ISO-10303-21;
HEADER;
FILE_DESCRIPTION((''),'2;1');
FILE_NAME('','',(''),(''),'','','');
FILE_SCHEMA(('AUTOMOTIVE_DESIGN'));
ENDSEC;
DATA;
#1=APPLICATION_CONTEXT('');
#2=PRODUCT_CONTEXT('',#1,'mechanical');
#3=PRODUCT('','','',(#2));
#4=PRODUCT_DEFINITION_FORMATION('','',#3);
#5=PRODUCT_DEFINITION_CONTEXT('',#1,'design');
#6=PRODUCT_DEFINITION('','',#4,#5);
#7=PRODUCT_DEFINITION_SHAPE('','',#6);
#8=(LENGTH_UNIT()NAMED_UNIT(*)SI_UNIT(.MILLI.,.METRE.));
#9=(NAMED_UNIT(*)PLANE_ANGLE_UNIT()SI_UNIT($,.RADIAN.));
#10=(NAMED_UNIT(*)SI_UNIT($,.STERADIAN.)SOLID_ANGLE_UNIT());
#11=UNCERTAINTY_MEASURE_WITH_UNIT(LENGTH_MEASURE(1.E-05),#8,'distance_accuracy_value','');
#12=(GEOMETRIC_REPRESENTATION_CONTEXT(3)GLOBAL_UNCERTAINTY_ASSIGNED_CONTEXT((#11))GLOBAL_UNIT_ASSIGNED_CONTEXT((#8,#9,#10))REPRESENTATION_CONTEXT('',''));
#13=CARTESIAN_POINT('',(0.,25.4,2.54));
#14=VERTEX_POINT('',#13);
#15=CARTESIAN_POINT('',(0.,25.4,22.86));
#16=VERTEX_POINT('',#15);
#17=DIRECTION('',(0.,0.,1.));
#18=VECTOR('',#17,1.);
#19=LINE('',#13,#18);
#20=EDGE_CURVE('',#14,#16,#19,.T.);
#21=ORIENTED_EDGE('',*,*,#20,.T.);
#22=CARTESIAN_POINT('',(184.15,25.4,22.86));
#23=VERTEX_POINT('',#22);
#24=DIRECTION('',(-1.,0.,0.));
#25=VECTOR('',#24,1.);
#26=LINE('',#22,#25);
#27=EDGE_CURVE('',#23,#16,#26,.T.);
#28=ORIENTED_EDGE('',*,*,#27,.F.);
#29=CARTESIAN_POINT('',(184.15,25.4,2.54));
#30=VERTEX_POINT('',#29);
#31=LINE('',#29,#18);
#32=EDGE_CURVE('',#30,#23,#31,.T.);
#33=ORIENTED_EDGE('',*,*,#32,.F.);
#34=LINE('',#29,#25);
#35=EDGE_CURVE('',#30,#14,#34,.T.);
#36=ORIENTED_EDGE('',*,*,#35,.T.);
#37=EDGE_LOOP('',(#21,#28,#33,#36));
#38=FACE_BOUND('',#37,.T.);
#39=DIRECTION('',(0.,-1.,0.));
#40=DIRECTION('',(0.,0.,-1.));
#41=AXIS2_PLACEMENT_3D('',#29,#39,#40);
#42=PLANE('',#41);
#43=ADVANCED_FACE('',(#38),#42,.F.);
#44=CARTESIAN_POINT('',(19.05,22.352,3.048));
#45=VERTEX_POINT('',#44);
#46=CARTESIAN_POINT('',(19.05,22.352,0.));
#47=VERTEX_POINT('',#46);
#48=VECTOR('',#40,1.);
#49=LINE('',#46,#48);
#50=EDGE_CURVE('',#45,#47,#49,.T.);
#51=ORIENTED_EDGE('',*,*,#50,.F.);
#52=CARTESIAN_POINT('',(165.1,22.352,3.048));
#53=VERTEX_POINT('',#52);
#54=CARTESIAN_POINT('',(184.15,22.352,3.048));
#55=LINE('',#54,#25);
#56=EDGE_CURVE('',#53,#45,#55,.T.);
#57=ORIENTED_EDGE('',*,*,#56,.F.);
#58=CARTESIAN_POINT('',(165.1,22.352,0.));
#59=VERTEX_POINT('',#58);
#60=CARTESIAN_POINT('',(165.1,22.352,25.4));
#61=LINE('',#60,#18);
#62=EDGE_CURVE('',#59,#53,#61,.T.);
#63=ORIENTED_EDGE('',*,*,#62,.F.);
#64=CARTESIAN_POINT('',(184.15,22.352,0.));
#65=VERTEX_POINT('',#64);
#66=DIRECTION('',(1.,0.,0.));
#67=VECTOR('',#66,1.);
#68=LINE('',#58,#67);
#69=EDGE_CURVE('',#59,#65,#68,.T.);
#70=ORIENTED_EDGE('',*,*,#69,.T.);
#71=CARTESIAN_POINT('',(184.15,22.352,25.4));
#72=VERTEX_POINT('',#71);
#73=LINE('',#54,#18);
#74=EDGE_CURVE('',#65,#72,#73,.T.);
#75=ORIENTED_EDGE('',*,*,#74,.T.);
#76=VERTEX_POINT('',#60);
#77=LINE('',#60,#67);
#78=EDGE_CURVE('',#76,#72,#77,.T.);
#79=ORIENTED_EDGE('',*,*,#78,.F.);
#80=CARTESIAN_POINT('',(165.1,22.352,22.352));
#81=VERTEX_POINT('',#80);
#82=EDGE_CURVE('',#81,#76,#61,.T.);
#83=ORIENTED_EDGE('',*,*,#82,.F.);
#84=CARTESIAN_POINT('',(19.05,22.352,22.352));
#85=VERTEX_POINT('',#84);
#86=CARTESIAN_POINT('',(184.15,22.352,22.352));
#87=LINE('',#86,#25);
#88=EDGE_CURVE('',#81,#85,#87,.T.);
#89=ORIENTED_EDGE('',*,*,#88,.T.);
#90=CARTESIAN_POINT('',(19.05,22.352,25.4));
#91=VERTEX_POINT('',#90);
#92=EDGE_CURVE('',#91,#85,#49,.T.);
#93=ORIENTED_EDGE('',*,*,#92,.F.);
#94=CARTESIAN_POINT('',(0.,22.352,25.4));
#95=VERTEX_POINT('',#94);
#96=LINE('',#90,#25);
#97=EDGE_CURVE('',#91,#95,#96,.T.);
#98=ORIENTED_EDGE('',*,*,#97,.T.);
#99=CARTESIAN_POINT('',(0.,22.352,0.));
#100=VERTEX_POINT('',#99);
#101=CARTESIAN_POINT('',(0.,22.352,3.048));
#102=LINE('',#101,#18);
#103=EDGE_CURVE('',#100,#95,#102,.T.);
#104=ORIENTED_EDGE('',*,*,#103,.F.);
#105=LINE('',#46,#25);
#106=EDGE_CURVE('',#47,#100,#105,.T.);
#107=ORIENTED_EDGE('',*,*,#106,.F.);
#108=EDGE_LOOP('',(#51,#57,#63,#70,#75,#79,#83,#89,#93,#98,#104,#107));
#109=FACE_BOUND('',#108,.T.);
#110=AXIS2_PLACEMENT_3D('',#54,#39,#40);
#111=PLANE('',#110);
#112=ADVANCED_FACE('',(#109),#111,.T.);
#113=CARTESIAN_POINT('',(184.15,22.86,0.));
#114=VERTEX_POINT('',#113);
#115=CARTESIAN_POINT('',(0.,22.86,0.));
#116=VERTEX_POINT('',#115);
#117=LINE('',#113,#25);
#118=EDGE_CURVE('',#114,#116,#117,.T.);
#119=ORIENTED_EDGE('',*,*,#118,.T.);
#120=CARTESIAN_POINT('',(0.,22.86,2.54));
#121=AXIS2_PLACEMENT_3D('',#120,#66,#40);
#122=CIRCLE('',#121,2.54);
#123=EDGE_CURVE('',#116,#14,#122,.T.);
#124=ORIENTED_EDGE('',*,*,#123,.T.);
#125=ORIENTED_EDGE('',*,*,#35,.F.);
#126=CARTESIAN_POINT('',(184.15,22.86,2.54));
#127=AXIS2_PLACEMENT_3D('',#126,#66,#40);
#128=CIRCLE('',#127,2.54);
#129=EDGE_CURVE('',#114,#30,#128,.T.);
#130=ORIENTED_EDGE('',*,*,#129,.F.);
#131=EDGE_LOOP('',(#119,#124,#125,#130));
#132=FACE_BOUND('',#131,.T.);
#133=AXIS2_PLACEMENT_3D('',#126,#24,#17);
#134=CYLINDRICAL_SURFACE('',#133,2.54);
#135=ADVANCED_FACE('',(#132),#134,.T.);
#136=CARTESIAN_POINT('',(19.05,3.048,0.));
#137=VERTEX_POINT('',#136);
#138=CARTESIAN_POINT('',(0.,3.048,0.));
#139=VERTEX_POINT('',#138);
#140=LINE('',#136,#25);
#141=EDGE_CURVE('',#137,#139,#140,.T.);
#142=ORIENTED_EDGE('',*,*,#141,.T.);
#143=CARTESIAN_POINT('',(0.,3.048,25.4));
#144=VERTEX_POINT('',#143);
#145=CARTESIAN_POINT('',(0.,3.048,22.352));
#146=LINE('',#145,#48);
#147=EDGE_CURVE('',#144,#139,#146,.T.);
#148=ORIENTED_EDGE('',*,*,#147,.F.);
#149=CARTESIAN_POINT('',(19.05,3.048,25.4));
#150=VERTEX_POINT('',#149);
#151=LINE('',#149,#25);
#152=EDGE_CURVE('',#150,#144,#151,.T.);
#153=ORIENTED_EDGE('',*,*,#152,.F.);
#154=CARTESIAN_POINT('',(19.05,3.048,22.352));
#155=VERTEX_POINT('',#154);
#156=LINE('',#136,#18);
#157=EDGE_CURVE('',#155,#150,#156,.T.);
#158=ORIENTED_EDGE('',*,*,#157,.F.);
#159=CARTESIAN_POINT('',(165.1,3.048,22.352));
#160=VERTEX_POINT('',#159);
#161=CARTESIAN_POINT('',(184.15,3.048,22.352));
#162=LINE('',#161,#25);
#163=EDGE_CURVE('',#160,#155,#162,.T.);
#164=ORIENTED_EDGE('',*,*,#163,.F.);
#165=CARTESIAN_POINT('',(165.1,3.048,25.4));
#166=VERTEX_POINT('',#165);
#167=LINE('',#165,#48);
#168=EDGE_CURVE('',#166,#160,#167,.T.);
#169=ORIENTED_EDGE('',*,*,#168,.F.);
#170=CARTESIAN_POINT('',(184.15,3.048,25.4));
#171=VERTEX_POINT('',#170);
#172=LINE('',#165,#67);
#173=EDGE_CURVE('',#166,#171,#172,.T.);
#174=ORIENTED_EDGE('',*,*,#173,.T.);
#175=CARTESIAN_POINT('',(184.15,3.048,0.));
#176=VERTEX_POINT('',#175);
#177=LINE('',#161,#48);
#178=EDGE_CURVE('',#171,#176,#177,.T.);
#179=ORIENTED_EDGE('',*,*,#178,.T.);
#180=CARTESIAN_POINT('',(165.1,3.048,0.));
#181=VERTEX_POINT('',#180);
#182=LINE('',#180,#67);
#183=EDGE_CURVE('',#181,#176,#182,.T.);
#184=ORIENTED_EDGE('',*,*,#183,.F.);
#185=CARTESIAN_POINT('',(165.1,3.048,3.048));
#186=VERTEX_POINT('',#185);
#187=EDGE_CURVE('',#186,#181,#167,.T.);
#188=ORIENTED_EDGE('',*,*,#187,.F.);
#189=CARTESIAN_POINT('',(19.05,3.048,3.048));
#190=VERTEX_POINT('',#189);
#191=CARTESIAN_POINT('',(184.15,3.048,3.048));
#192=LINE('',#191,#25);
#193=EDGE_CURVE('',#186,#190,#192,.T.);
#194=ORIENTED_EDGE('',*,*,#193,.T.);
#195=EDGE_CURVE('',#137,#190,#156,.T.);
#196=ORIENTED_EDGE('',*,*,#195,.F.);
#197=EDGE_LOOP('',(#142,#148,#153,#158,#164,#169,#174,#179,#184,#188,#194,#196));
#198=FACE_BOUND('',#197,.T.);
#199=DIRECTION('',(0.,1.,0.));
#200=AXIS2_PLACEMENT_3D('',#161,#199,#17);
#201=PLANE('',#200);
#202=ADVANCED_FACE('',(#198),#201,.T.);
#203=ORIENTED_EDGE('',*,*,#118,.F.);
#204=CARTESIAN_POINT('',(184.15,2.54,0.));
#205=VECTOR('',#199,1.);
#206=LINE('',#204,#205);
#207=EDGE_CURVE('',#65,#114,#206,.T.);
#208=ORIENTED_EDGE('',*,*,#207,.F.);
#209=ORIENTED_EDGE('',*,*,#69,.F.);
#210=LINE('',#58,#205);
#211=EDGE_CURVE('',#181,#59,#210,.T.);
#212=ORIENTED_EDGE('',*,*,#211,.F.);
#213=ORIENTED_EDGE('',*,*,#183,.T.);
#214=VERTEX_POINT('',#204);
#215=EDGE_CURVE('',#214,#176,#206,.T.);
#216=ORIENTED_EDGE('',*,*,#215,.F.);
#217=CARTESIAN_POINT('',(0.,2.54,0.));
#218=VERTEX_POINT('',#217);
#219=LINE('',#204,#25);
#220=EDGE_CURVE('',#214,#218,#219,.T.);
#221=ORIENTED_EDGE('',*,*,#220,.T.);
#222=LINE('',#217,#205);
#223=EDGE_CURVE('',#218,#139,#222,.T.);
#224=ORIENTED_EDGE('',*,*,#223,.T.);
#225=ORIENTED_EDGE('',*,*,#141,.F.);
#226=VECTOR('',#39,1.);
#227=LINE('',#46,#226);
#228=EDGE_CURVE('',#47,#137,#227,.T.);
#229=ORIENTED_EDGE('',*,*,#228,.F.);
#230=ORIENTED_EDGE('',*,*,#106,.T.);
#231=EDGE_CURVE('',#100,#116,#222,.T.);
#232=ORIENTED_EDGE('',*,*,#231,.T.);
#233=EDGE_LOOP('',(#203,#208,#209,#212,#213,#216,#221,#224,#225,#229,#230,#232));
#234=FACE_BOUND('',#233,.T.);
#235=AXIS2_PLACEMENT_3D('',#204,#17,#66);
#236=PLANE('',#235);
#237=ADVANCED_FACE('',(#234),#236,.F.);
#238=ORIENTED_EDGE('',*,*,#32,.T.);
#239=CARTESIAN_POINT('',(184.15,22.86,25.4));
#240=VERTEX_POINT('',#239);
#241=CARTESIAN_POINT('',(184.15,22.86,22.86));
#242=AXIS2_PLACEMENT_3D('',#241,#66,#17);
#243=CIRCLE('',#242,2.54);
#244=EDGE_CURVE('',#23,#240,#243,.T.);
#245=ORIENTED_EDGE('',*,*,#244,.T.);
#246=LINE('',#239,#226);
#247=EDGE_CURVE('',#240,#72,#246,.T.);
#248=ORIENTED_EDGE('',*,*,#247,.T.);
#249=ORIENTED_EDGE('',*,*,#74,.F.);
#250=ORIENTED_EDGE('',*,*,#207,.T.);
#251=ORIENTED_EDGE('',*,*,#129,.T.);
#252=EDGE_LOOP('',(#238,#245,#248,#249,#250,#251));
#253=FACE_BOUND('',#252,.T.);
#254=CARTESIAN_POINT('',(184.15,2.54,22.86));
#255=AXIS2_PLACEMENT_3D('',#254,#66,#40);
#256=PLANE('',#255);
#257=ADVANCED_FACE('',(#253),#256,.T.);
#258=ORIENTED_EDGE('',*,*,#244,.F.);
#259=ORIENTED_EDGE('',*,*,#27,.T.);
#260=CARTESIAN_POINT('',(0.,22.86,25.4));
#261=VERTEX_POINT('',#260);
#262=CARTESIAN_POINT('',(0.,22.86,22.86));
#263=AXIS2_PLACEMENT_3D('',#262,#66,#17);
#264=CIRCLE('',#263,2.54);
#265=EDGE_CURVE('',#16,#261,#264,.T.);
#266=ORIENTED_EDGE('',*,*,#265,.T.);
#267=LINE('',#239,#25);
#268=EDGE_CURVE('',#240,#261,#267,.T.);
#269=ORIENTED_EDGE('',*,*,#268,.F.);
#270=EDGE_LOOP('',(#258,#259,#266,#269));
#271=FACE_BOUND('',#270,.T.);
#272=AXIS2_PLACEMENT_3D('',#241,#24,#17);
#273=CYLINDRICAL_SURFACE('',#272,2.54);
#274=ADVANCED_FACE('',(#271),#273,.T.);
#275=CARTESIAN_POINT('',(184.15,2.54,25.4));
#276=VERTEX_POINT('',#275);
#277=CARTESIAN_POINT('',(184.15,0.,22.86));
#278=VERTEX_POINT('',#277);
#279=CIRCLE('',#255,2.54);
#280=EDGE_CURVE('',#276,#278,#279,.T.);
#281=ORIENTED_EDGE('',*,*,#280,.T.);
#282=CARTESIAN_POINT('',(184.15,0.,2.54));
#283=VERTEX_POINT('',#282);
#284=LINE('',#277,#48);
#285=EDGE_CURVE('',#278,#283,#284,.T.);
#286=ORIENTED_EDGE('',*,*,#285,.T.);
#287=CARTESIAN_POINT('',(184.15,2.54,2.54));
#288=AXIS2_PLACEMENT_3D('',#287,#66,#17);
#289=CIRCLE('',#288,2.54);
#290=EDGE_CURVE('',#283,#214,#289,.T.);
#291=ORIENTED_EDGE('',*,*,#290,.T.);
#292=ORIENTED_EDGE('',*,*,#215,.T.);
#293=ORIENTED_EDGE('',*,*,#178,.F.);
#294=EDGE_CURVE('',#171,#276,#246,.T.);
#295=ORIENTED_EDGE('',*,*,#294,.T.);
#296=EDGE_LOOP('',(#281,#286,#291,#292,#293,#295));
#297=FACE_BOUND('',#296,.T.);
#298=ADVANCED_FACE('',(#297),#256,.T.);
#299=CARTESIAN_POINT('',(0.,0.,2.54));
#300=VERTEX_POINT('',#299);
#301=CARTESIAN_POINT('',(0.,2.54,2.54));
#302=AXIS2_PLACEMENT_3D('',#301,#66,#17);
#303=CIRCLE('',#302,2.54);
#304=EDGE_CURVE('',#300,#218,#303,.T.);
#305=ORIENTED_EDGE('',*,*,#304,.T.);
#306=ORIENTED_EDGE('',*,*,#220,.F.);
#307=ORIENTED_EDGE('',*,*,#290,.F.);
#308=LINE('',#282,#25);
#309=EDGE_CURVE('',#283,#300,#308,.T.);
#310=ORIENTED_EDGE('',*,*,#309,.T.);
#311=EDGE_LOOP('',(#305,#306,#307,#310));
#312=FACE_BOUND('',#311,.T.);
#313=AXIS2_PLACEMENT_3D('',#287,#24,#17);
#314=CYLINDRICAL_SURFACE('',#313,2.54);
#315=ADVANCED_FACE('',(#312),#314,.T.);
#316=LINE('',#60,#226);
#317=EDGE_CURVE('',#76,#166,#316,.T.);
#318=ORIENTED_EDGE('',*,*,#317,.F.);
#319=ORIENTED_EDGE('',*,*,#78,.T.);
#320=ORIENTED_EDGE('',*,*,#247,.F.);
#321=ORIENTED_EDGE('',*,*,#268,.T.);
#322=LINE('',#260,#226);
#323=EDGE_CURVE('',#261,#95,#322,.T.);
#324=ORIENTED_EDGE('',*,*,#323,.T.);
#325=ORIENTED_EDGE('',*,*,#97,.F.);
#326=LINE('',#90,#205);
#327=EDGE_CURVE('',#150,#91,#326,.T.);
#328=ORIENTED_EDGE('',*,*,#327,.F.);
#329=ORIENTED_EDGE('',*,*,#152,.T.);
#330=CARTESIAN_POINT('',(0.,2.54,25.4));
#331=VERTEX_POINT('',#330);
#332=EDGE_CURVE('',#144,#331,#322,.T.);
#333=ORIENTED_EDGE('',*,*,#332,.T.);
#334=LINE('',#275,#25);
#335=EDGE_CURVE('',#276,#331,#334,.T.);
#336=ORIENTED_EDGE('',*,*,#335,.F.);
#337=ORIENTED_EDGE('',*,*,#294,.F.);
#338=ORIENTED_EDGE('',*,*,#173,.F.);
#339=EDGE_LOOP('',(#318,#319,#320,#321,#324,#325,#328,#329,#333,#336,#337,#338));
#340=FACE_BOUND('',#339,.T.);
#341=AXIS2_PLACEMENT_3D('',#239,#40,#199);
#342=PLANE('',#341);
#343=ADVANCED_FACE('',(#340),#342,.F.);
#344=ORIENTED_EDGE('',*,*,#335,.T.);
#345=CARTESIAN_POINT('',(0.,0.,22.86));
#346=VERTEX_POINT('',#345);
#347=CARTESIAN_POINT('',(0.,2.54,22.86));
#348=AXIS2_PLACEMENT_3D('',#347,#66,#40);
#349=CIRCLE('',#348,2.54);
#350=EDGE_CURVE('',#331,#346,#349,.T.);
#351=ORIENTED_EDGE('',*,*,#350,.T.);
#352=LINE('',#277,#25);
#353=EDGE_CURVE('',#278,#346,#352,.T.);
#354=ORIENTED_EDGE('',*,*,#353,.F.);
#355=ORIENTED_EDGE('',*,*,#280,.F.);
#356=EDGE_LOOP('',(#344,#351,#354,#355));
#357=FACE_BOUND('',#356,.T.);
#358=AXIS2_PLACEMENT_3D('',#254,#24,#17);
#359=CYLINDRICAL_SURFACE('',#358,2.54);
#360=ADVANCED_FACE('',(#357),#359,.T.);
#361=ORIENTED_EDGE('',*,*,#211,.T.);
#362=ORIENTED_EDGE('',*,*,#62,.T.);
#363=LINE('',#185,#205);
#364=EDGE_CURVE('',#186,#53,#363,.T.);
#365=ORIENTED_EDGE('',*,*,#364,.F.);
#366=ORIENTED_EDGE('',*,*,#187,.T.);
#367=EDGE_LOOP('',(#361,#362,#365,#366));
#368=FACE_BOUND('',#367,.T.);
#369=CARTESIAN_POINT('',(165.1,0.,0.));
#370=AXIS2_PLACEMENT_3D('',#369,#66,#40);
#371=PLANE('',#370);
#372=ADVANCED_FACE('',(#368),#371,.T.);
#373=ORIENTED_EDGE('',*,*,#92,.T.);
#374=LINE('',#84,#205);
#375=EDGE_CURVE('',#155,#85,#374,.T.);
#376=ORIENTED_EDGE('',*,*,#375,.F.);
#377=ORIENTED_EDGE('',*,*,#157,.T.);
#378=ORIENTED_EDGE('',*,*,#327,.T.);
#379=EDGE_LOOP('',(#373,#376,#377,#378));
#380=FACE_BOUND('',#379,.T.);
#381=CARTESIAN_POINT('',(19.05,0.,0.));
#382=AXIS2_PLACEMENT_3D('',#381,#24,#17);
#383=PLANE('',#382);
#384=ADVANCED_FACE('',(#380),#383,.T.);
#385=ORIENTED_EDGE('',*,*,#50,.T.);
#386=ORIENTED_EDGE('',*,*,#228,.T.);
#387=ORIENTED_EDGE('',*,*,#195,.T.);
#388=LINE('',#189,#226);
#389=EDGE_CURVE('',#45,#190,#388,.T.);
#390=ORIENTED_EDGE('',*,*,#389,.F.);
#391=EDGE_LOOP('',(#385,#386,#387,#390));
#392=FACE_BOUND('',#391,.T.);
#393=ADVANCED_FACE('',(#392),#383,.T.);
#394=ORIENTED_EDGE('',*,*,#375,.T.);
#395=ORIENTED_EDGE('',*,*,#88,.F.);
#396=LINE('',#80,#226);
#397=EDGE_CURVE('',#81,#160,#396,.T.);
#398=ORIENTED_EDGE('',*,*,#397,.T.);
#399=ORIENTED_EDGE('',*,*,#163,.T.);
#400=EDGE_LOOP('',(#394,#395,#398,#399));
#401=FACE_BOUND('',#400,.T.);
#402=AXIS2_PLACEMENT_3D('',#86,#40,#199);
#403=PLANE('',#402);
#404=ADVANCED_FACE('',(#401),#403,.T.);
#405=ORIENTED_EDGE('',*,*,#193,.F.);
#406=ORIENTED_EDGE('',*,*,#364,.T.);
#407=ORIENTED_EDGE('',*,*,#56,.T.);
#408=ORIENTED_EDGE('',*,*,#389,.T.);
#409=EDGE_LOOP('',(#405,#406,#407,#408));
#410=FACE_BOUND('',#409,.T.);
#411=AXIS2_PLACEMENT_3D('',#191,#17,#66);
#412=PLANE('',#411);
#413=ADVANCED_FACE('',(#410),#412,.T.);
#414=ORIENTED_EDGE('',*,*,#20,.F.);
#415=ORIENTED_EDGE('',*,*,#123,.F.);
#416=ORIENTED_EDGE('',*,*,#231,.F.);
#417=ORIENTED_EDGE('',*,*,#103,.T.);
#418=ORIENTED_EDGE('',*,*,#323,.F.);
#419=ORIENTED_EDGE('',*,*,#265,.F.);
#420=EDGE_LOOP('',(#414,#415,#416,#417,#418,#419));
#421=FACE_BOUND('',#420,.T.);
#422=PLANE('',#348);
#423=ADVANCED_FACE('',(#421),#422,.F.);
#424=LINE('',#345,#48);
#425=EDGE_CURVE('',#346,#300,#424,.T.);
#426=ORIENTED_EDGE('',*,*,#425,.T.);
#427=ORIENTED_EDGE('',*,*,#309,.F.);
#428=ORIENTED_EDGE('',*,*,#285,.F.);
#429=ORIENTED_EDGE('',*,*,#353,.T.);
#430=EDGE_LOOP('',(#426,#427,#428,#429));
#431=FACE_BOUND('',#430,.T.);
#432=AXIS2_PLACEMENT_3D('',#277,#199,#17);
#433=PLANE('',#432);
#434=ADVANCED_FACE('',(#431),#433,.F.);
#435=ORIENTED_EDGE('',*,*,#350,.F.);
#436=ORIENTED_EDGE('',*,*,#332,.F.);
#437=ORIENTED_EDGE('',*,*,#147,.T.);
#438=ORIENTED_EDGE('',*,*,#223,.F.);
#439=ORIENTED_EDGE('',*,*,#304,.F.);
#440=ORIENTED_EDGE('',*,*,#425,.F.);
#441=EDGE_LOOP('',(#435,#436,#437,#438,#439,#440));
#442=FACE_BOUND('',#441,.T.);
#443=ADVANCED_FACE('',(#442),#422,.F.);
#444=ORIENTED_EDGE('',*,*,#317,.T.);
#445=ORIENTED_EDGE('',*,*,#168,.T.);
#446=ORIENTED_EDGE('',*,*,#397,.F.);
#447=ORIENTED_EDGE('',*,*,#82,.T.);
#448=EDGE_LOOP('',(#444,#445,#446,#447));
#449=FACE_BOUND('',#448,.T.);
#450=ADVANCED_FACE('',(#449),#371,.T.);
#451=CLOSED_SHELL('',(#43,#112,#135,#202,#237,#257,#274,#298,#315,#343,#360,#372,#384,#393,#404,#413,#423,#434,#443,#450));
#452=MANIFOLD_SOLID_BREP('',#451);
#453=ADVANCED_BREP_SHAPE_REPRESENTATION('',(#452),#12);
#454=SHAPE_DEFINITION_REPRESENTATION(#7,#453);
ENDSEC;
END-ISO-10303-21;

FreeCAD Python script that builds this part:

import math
import FreeCAD as App
import Part
import Sketcher

V = App.Vector
Q = App.Units.Quantity


def add_polygon(sketch, points):
    """Adds a closed chain of lines whose ends are joined by coincident constraints."""
    first, n = sketch.GeometryCount, len(points)
    for a, b in zip(points, points[1:] + points[:1]):
        sketch.addGeometry(Part.LineSegment(App.Vector(*a, 0), App.Vector(*b, 0)), False)
    for i in range(n):
        sketch.addConstraint(Sketcher.Constraint("Coincident", first + i, 2, first + (i + 1) % n, 1))

doc = App.newDocument("Part")
body = doc.addObject("PartDesign::Body", "Body")

# Sketch on YZ plane
sketch1 = body.newObject("Sketcher::SketchObject", "Sketch")
sketch1.AttachmentSupport = (doc.getObject("YZ_Plane"), [""])
sketch1.MapMode = "FlatFace"
sketch1.addGeometry(Part.LineSegment(V(2.5, 0, 0), V(22.9, 0, 0)), False)  # 0
sketch1.addGeometry(Part.ArcOfCircle(Part.Circle(V(22.9, 2.5, 0), V(0, 0, 1), 2.5), math.radians(-90), math.radians(0)), False)  # 1
sketch1.addGeometry(Part.LineSegment(V(25.4, 2.5, 0), V(25.4, 22.9, 0)), False)  # 2
sketch1.addGeometry(Part.ArcOfCircle(Part.Circle(V(22.9, 22.9, 0), V(0, 0, 1), 2.5), math.radians(0), math.radians(90)), False)  # 3
sketch1.addGeometry(Part.LineSegment(V(22.9, 25.4, 0), V(2.5, 25.4, 0)), False)  # 4
sketch1.addGeometry(Part.ArcOfCircle(Part.Circle(V(2.5, 22.9, 0), V(0, 0, 1), 2.5), math.radians(90), math.radians(180)), False)  # 5
sketch1.addGeometry(Part.LineSegment(V(0, 22.9, 0), V(0, 2.5, 0)), False)  # 6
sketch1.addGeometry(Part.ArcOfCircle(Part.Circle(V(2.5, 2.5, 0), V(0, 0, 1), 2.5), math.radians(-180), math.radians(-90)), False)  # 7
add_polygon(sketch1, [(3, 3), (3, 22.4), (22.4, 22.4), (22.4, 3)])  # lines 8-11
sketch1.addConstraint(Sketcher.Constraint("Tangent", 0, 2, 1, 1))
sketch1.addConstraint(Sketcher.Constraint("Tangent", 1, 2, 2, 1))
sketch1.addConstraint(Sketcher.Constraint("Tangent", 2, 2, 3, 1))
sketch1.addConstraint(Sketcher.Constraint("Tangent", 3, 2, 4, 1))
sketch1.addConstraint(Sketcher.Constraint("Tangent", 4, 2, 5, 1))
sketch1.addConstraint(Sketcher.Constraint("Tangent", 5, 2, 6, 1))
sketch1.addConstraint(Sketcher.Constraint("Tangent", 6, 2, 7, 1))
sketch1.addConstraint(Sketcher.Constraint("Tangent", 7, 2, 0, 1))
sketch1.addConstraint(Sketcher.Constraint("Horizontal", 0))
sketch1.addConstraint(Sketcher.Constraint("Vertical", 2))
sketch1.addConstraint(Sketcher.Constraint("Horizontal", 4))
sketch1.addConstraint(Sketcher.Constraint("Vertical", 6))
sketch1.addConstraint(Sketcher.Constraint("Vertical", 8))
sketch1.addConstraint(Sketcher.Constraint("Horizontal", 9))
sketch1.addConstraint(Sketcher.Constraint("Vertical", 10))
sketch1.addConstraint(Sketcher.Constraint("Horizontal", 11))
sketch1.addConstraint(Sketcher.Constraint("Equal", 1, 3))
sketch1.addConstraint(Sketcher.Constraint("Equal", 3, 5))
sketch1.addConstraint(Sketcher.Constraint("Equal", 5, 7))
sketch1.addConstraint(Sketcher.Constraint("PointOnObject", 0, 2, -1))
sketch1.addConstraint(Sketcher.Constraint("PointOnObject", 5, 2, -2))
sketch1.addConstraint(Sketcher.Constraint("Equal", 4, 2))
sketch1.addConstraint(Sketcher.Constraint("Equal", 11, 8))
sketch1.addConstraint(Sketcher.Constraint("Radius", 1, Q("0.1 in")))
sketch1.addConstraint(Sketcher.Constraint("DistanceX", 0, 1, 0, 2, Q("0.8 in")))
sketch1.addConstraint(Sketcher.Constraint("DistanceX", 9, 1, 9, 2, Q("0.76 in")))
sketch1.addConstraint(Sketcher.Constraint("DistanceX", -1, 1, 8, 2, Q("0.12 in")))
sketch1.addConstraint(Sketcher.Constraint("DistanceY", -1, 1, 8, 2, Q("0.88 in")))
pad1 = body.newObject("PartDesign::Pad", "Pad")
pad1.Profile = sketch1
pad1.Length = Q("7.25 in")

# Sketch on YZ plane
sketch2 = body.newObject("Sketcher::SketchObject", "Sketch001")
sketch2.AttachmentSupport = (doc.getObject("YZ_Plane"), [""])
sketch2.MapMode = "FlatFace"
sketch2.AttachmentOffset = App.Placement(V(0, 0, 7.25 * 25.4), App.Rotation())
add_polygon(sketch2, [(22, 25), (3, 25), (3, 0), (22, 0)])  # lines 0-3
sketch2.addConstraint(Sketcher.Constraint("Horizontal", 0))
sketch2.addConstraint(Sketcher.Constraint("Vertical", 1))
sketch2.addConstraint(Sketcher.Constraint("Horizontal", 2))
sketch2.addConstraint(Sketcher.Constraint("Vertical", 3))
sketch2.addConstraint(Sketcher.Constraint("PointOnObject", 1, 2, -1))
sketch2.addConstraint(Sketcher.Constraint("DistanceY", 1, 2, 1, 1, Q("1 in")))
sketch2.addConstraint(Sketcher.Constraint("DistanceX", 0, 2, 0, 1, Q("0.76 in")))
sketch2.addConstraint(Sketcher.Constraint("DistanceX", -1, 1, 0, 2, Q("0.12 in")))
pocket1 = body.newObject("PartDesign::Pocket", "Pocket")
pocket1.Profile = sketch2
pocket1.Length = Q("0.75 in")

# Sketch on YZ plane
sketch3 = body.newObject("Sketcher::SketchObject", "Sketch002")
sketch3.AttachmentSupport = (doc.getObject("YZ_Plane"), [""])
sketch3.MapMode = "FlatFace"
add_polygon(sketch3, [(22, 0), (3, 0), (3, 25), (22, 25)])  # lines 0-3
sketch3.addConstraint(Sketcher.Constraint("Horizontal", 0))
sketch3.addConstraint(Sketcher.Constraint("Vertical", 1))
sketch3.addConstraint(Sketcher.Constraint("Horizontal", 2))
sketch3.addConstraint(Sketcher.Constraint("Vertical", 3))
sketch3.addConstraint(Sketcher.Constraint("PointOnObject", 0, 2, -1))
sketch3.addConstraint(Sketcher.Constraint("DistanceY", 1, 1, 1, 2, Q("1 in")))
sketch3.addConstraint(Sketcher.Constraint("DistanceX", 0, 2, 0, 1, Q("0.76 in")))
sketch3.addConstraint(Sketcher.Constraint("DistanceX", -1, 1, 0, 2, Q("0.12 in")))
pocket2 = body.newObject("PartDesign::Pocket", "Pocket001")
pocket2.Profile = sketch3
pocket2.Length = Q("0.75 in")
pocket2.Reversed = True

doc.recompute()
